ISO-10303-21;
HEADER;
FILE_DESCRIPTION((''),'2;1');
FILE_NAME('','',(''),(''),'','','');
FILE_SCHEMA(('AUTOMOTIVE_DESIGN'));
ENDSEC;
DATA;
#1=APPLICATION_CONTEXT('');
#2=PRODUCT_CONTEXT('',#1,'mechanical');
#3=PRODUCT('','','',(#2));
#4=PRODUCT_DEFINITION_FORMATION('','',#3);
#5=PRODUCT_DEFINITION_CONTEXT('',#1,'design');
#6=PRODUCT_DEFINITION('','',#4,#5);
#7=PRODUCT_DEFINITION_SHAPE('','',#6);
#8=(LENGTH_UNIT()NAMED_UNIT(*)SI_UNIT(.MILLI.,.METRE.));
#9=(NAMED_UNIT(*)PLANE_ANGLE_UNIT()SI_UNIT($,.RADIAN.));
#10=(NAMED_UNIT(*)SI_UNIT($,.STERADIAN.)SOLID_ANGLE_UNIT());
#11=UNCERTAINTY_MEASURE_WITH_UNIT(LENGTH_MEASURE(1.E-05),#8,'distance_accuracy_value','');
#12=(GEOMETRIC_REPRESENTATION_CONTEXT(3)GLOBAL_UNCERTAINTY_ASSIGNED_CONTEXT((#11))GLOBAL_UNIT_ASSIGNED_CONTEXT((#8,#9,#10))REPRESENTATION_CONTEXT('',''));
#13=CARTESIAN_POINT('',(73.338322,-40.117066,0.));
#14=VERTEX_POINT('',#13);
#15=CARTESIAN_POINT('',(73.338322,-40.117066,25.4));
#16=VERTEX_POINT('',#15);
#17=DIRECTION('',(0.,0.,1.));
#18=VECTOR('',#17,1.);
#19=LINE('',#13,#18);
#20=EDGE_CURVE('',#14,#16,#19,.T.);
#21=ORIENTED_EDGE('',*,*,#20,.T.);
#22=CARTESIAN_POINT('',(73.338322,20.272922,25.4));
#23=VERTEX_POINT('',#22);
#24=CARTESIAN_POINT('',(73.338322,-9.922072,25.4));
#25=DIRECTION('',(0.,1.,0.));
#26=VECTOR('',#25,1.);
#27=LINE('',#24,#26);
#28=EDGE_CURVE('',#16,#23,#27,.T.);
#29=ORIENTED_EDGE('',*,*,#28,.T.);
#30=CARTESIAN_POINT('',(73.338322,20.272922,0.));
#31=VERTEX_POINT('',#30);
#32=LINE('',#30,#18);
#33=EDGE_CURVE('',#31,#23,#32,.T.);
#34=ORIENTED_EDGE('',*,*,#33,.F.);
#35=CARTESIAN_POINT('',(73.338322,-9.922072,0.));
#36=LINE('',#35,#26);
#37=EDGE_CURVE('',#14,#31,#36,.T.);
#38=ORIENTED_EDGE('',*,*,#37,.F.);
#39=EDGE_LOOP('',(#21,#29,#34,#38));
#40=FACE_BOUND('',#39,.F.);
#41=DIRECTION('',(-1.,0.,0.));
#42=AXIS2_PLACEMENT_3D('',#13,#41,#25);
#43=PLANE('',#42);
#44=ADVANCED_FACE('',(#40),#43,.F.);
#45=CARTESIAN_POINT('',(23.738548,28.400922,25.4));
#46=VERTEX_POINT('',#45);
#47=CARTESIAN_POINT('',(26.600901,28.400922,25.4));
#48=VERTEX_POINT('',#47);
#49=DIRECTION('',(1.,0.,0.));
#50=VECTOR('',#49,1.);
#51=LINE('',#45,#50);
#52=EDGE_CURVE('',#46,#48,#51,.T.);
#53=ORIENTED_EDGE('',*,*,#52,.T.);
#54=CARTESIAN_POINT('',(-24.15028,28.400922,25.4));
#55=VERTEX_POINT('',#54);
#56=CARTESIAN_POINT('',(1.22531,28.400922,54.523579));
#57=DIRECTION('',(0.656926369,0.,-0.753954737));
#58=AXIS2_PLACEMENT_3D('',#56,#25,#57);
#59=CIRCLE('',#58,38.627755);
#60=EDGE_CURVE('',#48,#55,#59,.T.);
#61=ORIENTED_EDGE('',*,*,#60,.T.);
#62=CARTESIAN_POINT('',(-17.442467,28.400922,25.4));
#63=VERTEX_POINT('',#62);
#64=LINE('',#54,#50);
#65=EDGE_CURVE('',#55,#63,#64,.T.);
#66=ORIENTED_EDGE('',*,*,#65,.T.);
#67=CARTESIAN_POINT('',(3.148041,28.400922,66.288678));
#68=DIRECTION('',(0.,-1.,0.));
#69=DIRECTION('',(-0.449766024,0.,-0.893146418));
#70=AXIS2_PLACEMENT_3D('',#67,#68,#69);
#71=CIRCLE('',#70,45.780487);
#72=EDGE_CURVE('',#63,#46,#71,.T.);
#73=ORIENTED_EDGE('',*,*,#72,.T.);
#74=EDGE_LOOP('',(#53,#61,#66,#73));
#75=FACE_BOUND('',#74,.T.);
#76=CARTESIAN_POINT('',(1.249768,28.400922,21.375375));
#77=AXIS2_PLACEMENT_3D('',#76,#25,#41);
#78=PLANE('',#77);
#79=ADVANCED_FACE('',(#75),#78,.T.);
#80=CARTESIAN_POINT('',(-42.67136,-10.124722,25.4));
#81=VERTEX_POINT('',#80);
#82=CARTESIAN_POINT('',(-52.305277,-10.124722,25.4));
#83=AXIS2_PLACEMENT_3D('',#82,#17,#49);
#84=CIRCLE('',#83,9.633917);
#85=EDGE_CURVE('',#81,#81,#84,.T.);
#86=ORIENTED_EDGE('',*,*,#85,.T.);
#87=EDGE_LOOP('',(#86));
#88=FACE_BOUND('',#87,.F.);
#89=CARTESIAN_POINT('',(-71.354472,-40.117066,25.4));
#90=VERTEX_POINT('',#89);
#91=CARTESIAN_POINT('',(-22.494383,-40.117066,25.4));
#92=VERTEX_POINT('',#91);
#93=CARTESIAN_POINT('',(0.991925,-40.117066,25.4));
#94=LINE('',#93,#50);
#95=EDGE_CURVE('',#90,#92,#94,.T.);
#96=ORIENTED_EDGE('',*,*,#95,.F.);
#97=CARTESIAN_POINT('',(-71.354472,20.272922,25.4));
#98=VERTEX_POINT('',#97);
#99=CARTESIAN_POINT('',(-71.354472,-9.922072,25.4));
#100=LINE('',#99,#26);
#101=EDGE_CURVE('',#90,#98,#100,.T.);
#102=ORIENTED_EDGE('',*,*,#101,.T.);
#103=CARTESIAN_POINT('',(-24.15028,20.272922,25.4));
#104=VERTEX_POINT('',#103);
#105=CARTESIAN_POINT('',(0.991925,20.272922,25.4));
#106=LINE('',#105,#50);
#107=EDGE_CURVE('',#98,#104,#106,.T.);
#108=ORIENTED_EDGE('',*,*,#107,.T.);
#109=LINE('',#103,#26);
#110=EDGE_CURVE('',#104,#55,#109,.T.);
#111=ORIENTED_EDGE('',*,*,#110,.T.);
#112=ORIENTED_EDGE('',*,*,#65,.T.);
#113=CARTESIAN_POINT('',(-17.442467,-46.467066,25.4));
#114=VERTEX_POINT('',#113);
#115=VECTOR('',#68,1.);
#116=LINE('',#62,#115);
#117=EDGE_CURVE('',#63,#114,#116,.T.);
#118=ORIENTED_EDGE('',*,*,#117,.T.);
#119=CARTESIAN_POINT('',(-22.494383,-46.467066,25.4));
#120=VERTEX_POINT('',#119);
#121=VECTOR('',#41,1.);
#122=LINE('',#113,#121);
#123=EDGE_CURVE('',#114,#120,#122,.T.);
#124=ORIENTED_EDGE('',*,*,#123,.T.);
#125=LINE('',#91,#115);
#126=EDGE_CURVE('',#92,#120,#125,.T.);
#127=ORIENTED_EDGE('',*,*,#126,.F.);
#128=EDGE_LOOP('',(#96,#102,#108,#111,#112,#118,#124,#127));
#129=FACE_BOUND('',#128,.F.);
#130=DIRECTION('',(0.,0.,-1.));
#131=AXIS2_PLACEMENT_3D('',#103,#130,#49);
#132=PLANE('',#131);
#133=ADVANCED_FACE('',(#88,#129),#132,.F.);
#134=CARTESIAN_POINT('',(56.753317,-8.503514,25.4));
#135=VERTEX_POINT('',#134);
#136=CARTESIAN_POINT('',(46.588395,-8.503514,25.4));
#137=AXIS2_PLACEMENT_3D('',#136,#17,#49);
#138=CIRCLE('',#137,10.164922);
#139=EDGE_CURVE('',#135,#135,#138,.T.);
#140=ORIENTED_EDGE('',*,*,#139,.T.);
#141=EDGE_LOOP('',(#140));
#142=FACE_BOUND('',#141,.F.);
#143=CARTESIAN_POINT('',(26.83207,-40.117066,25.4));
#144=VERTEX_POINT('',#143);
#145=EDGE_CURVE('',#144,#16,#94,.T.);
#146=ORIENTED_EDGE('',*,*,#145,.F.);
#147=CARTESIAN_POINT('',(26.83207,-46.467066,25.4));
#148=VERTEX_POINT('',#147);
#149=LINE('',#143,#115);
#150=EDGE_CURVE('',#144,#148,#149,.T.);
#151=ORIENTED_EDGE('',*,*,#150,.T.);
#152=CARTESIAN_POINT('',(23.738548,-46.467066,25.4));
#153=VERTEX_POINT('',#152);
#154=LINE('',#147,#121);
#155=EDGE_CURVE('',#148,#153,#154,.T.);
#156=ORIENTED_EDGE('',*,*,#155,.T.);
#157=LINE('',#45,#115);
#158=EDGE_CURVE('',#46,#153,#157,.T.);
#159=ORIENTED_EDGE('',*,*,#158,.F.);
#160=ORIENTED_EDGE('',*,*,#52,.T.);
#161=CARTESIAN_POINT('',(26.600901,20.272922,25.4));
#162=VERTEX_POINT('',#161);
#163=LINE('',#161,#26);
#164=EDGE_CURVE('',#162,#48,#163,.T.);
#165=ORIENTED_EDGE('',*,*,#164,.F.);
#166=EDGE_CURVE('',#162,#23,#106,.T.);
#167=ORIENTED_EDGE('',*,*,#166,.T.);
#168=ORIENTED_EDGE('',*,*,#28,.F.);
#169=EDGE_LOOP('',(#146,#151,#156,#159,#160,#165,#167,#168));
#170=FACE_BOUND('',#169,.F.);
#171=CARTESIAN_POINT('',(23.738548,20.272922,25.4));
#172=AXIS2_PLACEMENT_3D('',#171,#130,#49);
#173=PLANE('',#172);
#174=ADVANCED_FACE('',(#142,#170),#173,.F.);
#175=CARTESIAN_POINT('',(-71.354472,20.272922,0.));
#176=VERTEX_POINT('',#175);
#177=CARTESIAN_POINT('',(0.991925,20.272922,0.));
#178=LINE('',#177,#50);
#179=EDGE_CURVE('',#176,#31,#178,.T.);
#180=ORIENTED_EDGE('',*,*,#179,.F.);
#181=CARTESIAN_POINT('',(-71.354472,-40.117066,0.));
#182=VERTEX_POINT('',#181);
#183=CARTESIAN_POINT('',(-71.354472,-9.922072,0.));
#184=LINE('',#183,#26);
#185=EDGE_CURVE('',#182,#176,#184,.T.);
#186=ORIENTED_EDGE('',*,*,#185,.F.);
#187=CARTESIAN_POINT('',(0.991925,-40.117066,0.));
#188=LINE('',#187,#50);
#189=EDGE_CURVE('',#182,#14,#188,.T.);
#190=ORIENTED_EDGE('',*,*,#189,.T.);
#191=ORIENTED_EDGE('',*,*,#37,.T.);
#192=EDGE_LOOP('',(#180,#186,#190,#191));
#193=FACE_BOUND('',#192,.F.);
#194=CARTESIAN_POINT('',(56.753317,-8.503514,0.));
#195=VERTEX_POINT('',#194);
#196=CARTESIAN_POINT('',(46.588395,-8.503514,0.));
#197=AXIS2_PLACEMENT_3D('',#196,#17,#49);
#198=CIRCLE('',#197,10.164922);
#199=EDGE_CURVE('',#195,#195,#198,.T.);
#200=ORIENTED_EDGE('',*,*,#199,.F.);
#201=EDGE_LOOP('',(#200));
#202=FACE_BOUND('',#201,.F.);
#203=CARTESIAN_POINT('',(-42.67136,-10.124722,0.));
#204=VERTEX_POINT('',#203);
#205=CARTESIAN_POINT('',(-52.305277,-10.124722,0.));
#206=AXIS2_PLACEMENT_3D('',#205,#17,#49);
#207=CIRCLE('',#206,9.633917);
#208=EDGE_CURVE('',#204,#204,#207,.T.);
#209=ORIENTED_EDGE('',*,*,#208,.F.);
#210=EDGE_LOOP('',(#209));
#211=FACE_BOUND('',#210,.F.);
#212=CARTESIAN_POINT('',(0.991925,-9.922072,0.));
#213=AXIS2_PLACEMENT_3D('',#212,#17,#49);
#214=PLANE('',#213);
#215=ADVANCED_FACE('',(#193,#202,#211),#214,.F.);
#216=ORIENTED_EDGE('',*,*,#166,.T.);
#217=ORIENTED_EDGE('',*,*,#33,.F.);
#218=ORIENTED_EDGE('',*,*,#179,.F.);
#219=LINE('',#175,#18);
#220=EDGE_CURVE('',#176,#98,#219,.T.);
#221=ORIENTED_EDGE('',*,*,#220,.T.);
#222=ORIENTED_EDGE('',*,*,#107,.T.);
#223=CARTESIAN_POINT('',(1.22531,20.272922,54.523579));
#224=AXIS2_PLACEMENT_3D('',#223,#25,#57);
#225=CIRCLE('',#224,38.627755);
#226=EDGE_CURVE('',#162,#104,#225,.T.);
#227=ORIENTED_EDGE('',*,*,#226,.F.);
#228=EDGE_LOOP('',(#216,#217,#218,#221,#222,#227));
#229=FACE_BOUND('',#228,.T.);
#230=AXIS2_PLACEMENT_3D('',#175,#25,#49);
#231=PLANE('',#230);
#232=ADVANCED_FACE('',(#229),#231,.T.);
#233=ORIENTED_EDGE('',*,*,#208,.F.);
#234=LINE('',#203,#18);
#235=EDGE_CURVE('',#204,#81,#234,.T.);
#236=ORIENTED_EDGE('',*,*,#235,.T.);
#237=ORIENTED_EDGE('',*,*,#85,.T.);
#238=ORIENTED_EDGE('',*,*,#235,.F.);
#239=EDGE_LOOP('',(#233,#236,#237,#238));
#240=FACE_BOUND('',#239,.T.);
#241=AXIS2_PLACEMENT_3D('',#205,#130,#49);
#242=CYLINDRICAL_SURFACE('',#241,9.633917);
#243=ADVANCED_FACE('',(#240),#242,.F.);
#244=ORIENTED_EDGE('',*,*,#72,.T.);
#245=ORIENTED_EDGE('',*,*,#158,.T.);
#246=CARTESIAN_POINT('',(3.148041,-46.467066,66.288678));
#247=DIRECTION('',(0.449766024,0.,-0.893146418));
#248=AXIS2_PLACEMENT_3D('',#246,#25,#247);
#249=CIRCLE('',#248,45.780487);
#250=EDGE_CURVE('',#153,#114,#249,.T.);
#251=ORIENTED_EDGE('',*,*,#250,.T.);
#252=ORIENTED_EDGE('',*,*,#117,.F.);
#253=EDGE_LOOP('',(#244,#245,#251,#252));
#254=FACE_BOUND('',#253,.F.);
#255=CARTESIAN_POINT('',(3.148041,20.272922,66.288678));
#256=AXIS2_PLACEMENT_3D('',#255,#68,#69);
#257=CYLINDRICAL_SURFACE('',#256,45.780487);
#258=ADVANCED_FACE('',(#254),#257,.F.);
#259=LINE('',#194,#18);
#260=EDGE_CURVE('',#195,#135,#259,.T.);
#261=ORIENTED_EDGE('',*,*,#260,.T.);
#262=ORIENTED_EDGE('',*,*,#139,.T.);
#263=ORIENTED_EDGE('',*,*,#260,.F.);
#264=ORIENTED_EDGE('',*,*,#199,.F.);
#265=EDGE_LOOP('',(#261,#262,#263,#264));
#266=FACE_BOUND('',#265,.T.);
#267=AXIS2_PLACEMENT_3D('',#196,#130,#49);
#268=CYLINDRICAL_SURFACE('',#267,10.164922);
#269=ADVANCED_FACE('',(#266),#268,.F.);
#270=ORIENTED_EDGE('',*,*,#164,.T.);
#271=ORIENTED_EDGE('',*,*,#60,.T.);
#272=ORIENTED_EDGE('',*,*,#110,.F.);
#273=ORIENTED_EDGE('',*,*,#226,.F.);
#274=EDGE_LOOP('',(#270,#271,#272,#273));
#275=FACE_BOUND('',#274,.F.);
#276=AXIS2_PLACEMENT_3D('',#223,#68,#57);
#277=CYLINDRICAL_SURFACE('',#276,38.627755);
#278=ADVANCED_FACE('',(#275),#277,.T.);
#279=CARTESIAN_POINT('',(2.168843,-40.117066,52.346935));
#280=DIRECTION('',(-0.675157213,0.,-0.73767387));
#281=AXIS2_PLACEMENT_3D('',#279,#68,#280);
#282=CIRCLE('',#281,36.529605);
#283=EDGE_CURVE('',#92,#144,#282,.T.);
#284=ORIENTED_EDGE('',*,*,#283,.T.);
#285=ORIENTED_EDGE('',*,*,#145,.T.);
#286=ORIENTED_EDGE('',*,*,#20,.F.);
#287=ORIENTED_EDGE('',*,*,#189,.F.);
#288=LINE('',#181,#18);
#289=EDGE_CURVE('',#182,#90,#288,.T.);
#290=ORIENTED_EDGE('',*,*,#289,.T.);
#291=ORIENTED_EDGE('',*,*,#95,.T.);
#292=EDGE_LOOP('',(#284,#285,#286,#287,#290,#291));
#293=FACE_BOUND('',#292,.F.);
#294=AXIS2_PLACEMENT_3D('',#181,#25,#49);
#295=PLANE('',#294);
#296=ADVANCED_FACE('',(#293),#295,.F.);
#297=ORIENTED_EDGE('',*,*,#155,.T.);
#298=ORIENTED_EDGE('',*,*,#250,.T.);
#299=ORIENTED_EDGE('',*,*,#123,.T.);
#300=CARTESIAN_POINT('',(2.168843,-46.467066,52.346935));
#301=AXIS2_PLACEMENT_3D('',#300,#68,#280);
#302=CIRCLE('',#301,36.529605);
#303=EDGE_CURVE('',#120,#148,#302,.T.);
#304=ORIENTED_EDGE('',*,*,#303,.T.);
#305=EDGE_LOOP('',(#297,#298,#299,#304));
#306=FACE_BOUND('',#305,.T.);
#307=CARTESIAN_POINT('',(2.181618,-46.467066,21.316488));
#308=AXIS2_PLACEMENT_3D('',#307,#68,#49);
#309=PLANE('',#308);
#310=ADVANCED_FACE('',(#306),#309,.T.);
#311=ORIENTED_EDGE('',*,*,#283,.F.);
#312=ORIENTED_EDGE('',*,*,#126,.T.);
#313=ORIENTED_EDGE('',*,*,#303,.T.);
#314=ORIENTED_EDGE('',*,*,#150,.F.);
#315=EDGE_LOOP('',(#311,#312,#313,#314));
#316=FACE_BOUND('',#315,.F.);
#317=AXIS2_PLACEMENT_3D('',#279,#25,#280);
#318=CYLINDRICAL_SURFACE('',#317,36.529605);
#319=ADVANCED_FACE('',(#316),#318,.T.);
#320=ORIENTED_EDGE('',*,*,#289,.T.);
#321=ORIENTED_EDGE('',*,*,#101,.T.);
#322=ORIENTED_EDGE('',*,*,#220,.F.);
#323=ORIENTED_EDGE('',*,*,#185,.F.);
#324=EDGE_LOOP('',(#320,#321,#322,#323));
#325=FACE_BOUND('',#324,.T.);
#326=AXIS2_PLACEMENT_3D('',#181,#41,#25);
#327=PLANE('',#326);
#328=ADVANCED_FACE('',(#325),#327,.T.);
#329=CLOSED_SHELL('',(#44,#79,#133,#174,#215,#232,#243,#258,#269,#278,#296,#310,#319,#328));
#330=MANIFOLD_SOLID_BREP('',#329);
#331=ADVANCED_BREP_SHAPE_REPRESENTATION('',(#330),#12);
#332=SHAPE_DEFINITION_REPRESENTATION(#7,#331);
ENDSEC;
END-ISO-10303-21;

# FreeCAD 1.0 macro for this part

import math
import FreeCAD as App
import Part
import Sketcher

V = App.Vector
Q = App.Units.Quantity

doc = App.newDocument("Part")
body = doc.addObject("PartDesign::Body", "Body")

# Sketch on XY plane
sketch1 = body.newObject("Sketcher::SketchObject", "Sketch")
sketch1.AttachmentSupport = (doc.getObject("XY_Plane"), [""])
sketch1.MapMode = "FlatFace"
sketch1.addGeometry([
    Part.LineSegment(V(-71.354472, 20.272922, 0), V(-71.354472, -40.117066, 0)),  # 0
    Part.LineSegment(V(-71.354472, -40.117066, 0), V(73.338322, -40.117066, 0)),  # 1
    Part.LineSegment(V(73.338322, -40.117066, 0), V(73.338322, 20.272922, 0)),  # 2
    Part.LineSegment(V(73.338322, 20.272922, 0), V(-71.354472, 20.272922, 0)),  # 3
    Part.Circle(V(-52.305277, -10.124722, 0), V(0, 0, 1), 9.633917),  # 4
    Part.Circle(V(46.588395, -8.503514, 0), V(0, 0, 1), 10.164922),  # 5
], False)
sketch1.addConstraint([
    Sketcher.Constraint("Coincident", 0, 2, 1, 1),
    Sketcher.Constraint("Coincident", 1, 2, 2, 1),
    Sketcher.Constraint("Coincident", 2, 2, 3, 1),
    Sketcher.Constraint("Coincident", 3, 2, 0, 1),
    Sketcher.Constraint("Vertical", 0),
    Sketcher.Constraint("Horizontal", 1),
    Sketcher.Constraint("Vertical", 2),
    Sketcher.Constraint("Horizontal", 3),
    Sketcher.Constraint("Diameter", 4, 19.267834),
    Sketcher.Constraint("Diameter", 5, 20.329844),
    Sketcher.Constraint("DistanceY", 0, 2, 0, 1, 60.389988),
    Sketcher.Constraint("DistanceX", 4, 3, 1, 2, 125.643598),
    Sketcher.Constraint("DistanceX", 1, 1, 1, 2, 144.692793),
    Sketcher.Constraint("DistanceX", 0, 2, -1, 1, 71.354472),
    Sketcher.Constraint("DistanceX", 4, 3, 5, 3, 98.893672),
    Sketcher.Constraint("DistanceY", 4, 3, 5, 3, 1.621208),
    Sketcher.Constraint("DistanceY", 4, 3, -1, 1, 10.124722),
    Sketcher.Constraint("DistanceY", 0, 2, -1, 1, 40.117066),
])
pad1 = body.newObject("PartDesign::Pad", "Pad")
pad1.Profile = sketch1
pad1.Length = Q("1 in")

# Sketch on XZ plane
sketch2 = body.newObject("Sketcher::SketchObject", "Sketch001")
sketch2.AttachmentSupport = (doc.getObject("XZ_Plane"), [""])
sketch2.MapMode = "FlatFace"
sketch2.AttachmentOffset = App.Placement(V(0, 0, 40.117066), App.Rotation())
sketch2.addGeometry([
    Part.LineSegment(V(23.738548, 25.4, 0), V(-17.442467, 25.4, 0)),
    Part.ArcOfCircle(Part.Circle(V(3.148041, 66.288678, 0), V(0, 0, 1), 45.780487), math.radians(-116.728673), math.radians(-63.271327)),
], False)
sketch2.addConstraint([
    Sketcher.Constraint("Coincident", 0, 1, 1, 2),
    Sketcher.Constraint("Coincident", 1, 1, 0, 2),
    Sketcher.Constraint("Horizontal", 0),
    Sketcher.Constraint("DistanceY", -1, 1, 0, 1, Q("1 in")),
    Sketcher.Constraint("DistanceX", 0, 2, 0, 1, Q("1.6212998 in")),
    Sketcher.Constraint("Radius", 1, 45.780487),
    Sketcher.Constraint("DistanceX", -1, 1, 1, 3, 3.148041),
])
pocket1 = body.newObject("PartDesign::Pocket", "Pocket")
pocket1.Profile = sketch2
pocket1.Length = Q("2.41 in")

# Sketch on XZ plane
sketch3 = body.newObject("Sketcher::SketchObject", "Sketch002")
sketch3.AttachmentSupport = (doc.getObject("XZ_Plane"), [""])
sketch3.MapMode = "FlatFace"
sketch3.AttachmentOffset = App.Placement(V(0, 0, 40.117066), App.Rotation())
sketch3.addGeometry([
    Part.ArcOfCircle(Part.Circle(V(3.148041, 66.288678, 0), V(0, 0, 1), 45.780487), math.radians(-116.728673), math.radians(-63.271327)),
    Part.LineSegment(V(-17.442467, 25.4, 0), V(-22.494383, 25.4, 0)),
    Part.ArcOfCircle(Part.Circle(V(2.168843, 52.346935, 0), V(0, 0, 1), 36.529605), math.radians(-132.46636), math.radians(-47.53364)),
    Part.LineSegment(V(26.83207, 25.4, 0), V(23.738548, 25.4, 0)),
], False)
sketch3.addConstraint([
    Sketcher.Constraint("Coincident", 0, 1, 1, 1),
    Sketcher.Constraint("Coincident", 1, 2, 2, 1),
    Sketcher.Constraint("Coincident", 2, 2, 3, 1),
    Sketcher.Constraint("Coincident", 3, 2, 0, 2),
    Sketcher.Constraint("Horizontal", 1),
    Sketcher.Constraint("Horizontal", 3),
    Sketcher.Constraint("Horizontal", 1, 2, 2, 2),
    Sketcher.Constraint("DistanceY", -1, 1, 0, 1, Q("1 in")),
    Sketcher.Constraint("Radius", 0, 45.780487),
    Sketcher.Constraint("Radius", 2, 36.529605),
    Sketcher.Constraint("DistanceX", 0, 1, 3, 2, Q("1.6212998 in")),
    Sketcher.Constraint("DistanceX", 1, 2, 1, 1, 5.051916),
    Sketcher.Constraint("DistanceX", 3, 2, 3, 1, 3.093522),
    Sketcher.Constraint("DistanceX", -1, 1, 0, 3, 3.148041),
])
pad2 = body.newObject("PartDesign::Pad", "Pad001")
pad2.Profile = sketch3
pad2.Length = Q("0.25 in")

# Sketch on XZ plane
sketch4 = body.newObject("Sketcher::SketchObject", "Sketch003")
sketch4.AttachmentSupport = (doc.getObject("XZ_Plane"), [""])
sketch4.MapMode = "FlatFace"
sketch4.AttachmentOffset = App.Placement(V(0, 0, -20.272922), App.Rotation())
sketch4.addGeometry([
    Part.LineSegment(V(23.738548, 25.4, 0), V(26.600901, 25.4, 0)),
    Part.ArcOfCircle(Part.Circle(V(1.22531, 54.523579, 0), V(0, 0, 1), 38.627755), math.radians(-131.065879), math.radians(-48.934121)),
    Part.LineSegment(V(-24.15028, 25.4, 0), V(-17.442467, 25.4, 0)),
    Part.ArcOfCircle(Part.Circle(V(3.148041, 66.288678, 0), V(0, 0, 1), 45.780487), math.radians(-116.728673), math.radians(-63.271327)),
], False)
sketch4.addConstraint([
    Sketcher.Constraint("Coincident", 0, 2, 1, 2),
    Sketcher.Constraint("Coincident", 1, 1, 2, 1),
    Sketcher.Constraint("Coincident", 2, 2, 3, 1),
    Sketcher.Constraint("Coincident", 3, 2, 0, 1),
    Sketcher.Constraint("Horizontal", 0),
    Sketcher.Constraint("Horizontal", 2),
    Sketcher.Constraint("Horizontal", 0, 2, 1, 1),
    Sketcher.Constraint("DistanceY", -1, 1, 0, 2, Q("1 in")),
    Sketcher.Constraint("Radius", 1, 38.627755),
    Sketcher.Constraint("Radius", 3, 45.780487),
    Sketcher.Constraint("DistanceX", 2, 2, 3, 2, Q("1.6212998 in")),
    Sketcher.Constraint("DistanceX", -1, 1, 0, 2, 26.600901),
    Sketcher.Constraint("DistanceY", 1, 3, 3, 3, 11.765099),
    Sketcher.Constraint("DistanceX", 0, 1, 0, 2, 2.862353),
])
pad3 = body.newObject("PartDesign::Pad", "Pad002")
pad3.Profile = sketch4
pad3.Length = Q("0.32 in")
pad3.Reversed = True

doc.recompute()
